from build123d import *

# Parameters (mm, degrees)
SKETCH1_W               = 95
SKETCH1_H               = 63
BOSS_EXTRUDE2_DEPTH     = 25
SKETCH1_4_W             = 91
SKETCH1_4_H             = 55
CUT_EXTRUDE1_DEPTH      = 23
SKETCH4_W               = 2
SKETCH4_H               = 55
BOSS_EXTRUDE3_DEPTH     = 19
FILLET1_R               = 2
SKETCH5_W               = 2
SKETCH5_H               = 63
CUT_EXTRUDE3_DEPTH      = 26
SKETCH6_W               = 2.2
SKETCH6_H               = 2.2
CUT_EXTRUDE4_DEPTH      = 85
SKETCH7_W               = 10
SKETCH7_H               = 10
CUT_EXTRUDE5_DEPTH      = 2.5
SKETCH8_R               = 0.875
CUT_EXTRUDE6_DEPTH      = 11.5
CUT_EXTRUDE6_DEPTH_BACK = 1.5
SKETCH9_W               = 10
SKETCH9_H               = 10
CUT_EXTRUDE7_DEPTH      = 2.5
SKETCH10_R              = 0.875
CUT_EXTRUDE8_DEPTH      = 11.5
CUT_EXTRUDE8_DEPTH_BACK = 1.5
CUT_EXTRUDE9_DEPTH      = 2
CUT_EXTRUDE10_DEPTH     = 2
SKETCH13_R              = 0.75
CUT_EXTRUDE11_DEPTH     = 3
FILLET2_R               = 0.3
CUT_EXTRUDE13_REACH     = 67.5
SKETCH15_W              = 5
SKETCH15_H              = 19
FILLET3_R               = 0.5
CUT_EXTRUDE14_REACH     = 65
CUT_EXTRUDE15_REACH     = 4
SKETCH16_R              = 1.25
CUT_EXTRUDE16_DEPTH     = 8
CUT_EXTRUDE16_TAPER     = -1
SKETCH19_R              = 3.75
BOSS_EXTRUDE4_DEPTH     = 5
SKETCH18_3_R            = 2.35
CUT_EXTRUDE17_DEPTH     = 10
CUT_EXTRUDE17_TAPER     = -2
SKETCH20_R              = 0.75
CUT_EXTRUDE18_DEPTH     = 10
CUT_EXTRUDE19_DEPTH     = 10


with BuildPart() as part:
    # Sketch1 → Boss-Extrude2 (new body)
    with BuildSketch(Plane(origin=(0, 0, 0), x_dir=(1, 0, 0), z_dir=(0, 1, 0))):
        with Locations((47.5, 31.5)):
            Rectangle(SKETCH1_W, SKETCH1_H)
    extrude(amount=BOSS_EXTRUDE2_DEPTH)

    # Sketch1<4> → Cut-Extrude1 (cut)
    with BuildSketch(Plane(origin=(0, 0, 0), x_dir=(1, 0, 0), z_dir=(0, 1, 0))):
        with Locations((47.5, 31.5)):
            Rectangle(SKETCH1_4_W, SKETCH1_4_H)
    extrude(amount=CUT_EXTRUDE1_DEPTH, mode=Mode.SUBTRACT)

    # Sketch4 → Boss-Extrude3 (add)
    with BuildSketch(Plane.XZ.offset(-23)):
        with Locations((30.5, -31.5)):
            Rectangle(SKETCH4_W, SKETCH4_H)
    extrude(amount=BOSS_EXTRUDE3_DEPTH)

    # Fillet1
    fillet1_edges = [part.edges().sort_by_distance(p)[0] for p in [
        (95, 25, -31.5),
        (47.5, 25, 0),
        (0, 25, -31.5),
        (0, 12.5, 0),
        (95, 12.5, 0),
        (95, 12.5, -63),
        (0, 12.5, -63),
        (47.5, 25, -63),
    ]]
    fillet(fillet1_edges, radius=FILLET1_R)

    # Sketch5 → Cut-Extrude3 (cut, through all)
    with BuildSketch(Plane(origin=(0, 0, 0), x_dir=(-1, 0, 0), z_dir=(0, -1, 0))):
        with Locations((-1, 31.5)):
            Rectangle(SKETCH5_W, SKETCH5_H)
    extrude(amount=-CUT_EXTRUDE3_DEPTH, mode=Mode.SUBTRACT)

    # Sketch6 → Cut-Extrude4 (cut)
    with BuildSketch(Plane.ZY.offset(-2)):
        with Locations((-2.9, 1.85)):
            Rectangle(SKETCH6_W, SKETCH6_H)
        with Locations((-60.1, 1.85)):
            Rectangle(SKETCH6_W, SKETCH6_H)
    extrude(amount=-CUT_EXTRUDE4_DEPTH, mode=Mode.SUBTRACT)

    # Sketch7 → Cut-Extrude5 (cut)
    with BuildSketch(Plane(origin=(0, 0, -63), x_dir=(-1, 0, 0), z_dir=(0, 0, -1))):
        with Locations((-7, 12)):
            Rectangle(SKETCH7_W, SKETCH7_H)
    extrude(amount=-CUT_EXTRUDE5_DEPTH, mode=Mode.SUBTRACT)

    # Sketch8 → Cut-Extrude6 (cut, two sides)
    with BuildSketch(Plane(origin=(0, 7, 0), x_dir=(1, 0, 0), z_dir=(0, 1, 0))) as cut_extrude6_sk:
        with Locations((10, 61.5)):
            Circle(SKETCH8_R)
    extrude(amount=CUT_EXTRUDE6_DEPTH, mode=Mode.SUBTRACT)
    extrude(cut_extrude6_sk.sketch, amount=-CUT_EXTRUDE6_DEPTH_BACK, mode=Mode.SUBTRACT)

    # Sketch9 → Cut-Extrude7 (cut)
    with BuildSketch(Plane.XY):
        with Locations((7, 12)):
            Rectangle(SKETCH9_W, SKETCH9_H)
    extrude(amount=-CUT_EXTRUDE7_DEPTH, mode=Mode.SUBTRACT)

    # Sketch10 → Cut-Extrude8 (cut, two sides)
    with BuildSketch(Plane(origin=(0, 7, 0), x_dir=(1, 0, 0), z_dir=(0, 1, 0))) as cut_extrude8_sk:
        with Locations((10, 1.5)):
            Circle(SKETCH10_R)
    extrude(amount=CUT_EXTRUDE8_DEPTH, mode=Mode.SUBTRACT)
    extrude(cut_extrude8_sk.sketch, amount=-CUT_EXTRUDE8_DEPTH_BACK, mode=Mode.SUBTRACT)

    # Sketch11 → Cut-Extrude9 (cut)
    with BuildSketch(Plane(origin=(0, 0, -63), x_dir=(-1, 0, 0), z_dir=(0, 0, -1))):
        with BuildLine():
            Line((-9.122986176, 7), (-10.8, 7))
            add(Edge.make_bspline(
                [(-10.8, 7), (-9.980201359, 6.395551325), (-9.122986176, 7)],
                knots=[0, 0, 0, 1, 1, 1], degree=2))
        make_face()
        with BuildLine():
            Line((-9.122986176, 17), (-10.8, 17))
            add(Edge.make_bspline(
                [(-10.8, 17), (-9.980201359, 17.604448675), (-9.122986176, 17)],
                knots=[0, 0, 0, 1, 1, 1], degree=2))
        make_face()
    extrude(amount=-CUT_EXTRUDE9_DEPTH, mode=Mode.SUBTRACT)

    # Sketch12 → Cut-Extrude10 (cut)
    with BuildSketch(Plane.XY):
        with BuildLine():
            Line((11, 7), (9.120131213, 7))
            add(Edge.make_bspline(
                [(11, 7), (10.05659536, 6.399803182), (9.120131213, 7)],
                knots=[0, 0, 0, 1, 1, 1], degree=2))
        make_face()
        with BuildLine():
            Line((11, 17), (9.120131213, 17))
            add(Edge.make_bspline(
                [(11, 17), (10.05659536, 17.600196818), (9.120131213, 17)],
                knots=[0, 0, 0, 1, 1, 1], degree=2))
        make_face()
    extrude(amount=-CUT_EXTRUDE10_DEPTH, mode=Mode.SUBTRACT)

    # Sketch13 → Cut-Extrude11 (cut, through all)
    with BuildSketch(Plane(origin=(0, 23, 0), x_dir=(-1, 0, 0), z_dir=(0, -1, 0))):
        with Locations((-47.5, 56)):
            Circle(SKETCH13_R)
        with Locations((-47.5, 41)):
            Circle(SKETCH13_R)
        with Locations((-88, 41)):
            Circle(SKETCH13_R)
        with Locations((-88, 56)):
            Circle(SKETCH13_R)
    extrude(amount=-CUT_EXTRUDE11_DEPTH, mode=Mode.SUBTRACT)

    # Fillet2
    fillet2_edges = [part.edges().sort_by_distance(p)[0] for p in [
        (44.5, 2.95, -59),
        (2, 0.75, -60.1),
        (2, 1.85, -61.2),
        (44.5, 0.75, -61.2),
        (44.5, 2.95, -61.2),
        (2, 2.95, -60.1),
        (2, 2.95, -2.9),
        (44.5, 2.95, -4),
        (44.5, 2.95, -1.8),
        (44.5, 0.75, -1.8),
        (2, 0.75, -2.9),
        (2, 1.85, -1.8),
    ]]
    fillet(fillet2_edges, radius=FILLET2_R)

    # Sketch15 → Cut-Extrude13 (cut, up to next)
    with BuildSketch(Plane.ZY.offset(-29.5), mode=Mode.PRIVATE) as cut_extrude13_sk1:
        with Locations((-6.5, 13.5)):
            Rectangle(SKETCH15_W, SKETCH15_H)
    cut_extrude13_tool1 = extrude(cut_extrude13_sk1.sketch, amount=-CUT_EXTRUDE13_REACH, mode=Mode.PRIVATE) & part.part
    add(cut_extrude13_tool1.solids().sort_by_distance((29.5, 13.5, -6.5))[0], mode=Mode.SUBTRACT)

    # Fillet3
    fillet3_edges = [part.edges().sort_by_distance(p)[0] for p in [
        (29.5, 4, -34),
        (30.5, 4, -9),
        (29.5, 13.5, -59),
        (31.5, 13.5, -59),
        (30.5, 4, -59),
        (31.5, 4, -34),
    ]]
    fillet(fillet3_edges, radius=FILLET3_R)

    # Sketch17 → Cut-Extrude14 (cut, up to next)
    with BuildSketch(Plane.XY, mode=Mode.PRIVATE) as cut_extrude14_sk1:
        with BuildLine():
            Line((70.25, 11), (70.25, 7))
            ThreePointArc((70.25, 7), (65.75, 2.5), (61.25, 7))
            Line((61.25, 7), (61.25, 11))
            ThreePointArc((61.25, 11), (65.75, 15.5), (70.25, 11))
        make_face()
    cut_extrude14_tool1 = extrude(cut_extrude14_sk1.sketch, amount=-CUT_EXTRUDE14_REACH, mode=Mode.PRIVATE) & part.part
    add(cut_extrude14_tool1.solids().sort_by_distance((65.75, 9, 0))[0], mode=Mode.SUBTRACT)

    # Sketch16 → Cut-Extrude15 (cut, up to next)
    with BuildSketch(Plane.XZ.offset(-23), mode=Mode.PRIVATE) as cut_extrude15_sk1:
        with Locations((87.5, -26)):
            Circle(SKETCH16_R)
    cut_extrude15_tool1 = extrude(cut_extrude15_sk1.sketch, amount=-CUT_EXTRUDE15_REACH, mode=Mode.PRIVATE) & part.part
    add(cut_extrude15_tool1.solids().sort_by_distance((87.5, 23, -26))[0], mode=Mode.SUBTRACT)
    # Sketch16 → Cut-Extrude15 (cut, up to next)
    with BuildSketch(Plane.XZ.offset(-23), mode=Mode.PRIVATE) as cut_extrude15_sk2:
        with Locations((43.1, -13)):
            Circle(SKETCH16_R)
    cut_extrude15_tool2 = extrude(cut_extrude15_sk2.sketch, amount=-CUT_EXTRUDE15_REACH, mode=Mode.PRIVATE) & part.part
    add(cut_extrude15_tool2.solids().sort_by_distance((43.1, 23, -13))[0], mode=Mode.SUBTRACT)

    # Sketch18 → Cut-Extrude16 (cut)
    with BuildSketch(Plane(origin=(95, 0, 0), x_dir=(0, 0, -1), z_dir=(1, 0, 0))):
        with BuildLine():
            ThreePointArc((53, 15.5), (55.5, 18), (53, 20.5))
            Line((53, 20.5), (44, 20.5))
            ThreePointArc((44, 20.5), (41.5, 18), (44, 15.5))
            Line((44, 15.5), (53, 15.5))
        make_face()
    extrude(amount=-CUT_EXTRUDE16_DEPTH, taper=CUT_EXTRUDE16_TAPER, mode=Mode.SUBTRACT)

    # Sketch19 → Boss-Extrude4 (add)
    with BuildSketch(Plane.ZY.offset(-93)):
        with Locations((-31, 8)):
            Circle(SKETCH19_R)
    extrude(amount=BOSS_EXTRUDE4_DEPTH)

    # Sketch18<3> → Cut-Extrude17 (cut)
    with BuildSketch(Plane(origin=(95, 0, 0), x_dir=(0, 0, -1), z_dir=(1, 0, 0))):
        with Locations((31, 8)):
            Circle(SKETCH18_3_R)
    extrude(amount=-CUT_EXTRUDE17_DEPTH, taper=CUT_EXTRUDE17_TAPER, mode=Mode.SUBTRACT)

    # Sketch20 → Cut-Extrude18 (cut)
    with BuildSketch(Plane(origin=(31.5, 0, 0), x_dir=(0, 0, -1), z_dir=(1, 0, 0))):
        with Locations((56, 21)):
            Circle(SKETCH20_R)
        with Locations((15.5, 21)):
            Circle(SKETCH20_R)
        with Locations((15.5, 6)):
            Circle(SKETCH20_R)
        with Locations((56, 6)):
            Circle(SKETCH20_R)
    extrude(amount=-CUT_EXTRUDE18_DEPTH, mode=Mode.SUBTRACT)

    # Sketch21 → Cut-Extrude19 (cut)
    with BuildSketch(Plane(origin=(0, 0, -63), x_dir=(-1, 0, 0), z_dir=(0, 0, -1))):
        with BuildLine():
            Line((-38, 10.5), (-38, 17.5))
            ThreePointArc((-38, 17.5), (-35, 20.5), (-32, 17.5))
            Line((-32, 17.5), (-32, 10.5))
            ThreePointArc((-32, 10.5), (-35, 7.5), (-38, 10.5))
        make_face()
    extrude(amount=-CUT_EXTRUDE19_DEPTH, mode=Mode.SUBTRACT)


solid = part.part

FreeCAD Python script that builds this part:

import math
import FreeCAD as App
import Part
import Sketcher
Q = App.Units.Quantity


def edges_at(feature, points):
    """Names of the edges that pass closest to the given points."""
    edges = feature.Shape.Edges
    near = lambda p: min(range(len(edges)), key=lambda i: edges[i].distToShape(Part.Vertex(*p))[0])
    return sorted({f"Edge{near(p) + 1}" for p in points})

doc = App.newDocument("Part")
body = doc.addObject("PartDesign::Body", "Body")

# Sketch on XZ plane
sketch1 = body.newObject("Sketcher::SketchObject", "Sketch")
sketch1.AttachmentSupport = (doc.getObject("XZ_Plane"), [""])
sketch1.MapMode = "FlatFace"
sketch1.addGeometry([
    Part.LineSegment(App.Vector(0, -63, 0), App.Vector(0, 0, 0)),
    Part.LineSegment(App.Vector(0, 0, 0), App.Vector(95, 0, 0)),
    Part.LineSegment(App.Vector(95, 0, 0), App.Vector(95, -63, 0)),
    Part.LineSegment(App.Vector(95, -63, 0), App.Vector(0, -63, 0)),
], False)
sketch1.addConstraint([
    Sketcher.Constraint("Coincident", 0, 2, 1, 1),
    Sketcher.Constraint("Coincident", 1, 2, 2, 1),
    Sketcher.Constraint("Coincident", 2, 2, 3, 1),
    Sketcher.Constraint("Coincident", 3, 2, 0, 1),
    Sketcher.Constraint("Vertical", 0),
    Sketcher.Constraint("Horizontal", 1),
    Sketcher.Constraint("Vertical", 2),
    Sketcher.Constraint("Horizontal", 3),
    Sketcher.Constraint("Coincident", 0, 2, -1, 1),
    Sketcher.Constraint("DistanceX", 1, 1, 1, 2, Q("95 mm")),
    Sketcher.Constraint("DistanceY", 0, 1, 0, 2, Q("63 mm")),
])
pad1 = body.newObject("PartDesign::Pad", "Pad")
pad1.Profile = sketch1
pad1.Length = 25
pad1.Reversed = True

# Sketch on XZ plane
sketch2 = body.newObject("Sketcher::SketchObject", "Sketch001")
sketch2.AttachmentSupport = (doc.getObject("XZ_Plane"), [""])
sketch2.MapMode = "FlatFace"
sketch2.addGeometry([
    Part.LineSegment(App.Vector(2, -59, 0), App.Vector(2, -4, 0)),
    Part.LineSegment(App.Vector(2, -4, 0), App.Vector(93, -4, 0)),
    Part.LineSegment(App.Vector(93, -4, 0), App.Vector(93, -59, 0)),
    Part.LineSegment(App.Vector(93, -59, 0), App.Vector(2, -59, 0)),
], False)
sketch2.addConstraint([
    Sketcher.Constraint("Coincident", 0, 2, 1, 1),
    Sketcher.Constraint("Coincident", 1, 2, 2, 1),
    Sketcher.Constraint("Coincident", 2, 2, 3, 1),
    Sketcher.Constraint("Coincident", 3, 2, 0, 1),
    Sketcher.Constraint("Vertical", 0),
    Sketcher.Constraint("Horizontal", 1),
    Sketcher.Constraint("Vertical", 2),
    Sketcher.Constraint("Horizontal", 3),
    Sketcher.Constraint("DistanceX", 1, 1, 1, 2, Q("91 mm")),
    Sketcher.Constraint("DistanceY", 0, 1, 0, 2, Q("55 mm")),
    Sketcher.Constraint("DistanceX", -1, 1, 0, 2, Q("2 mm")),
    Sketcher.Constraint("DistanceY", 0, 2, -1, 1, Q("4 mm")),
])
pocket1 = body.newObject("PartDesign::Pocket", "Pocket")
pocket1.Profile = sketch2
pocket1.Length = 23

# Sketch on XZ plane
sketch3 = body.newObject("Sketcher::SketchObject", "Sketch002")
sketch3.AttachmentSupport = (doc.getObject("XZ_Plane"), [""])
sketch3.MapMode = "FlatFace"
sketch3.AttachmentOffset = App.Placement(App.Vector(0, 0, -23), App.Rotation())
sketch3.addGeometry([
    Part.LineSegment(App.Vector(29.5, -4, 0), App.Vector(29.5, -59, 0)),
    Part.LineSegment(App.Vector(29.5, -59, 0), App.Vector(31.5, -59, 0)),
    Part.LineSegment(App.Vector(31.5, -59, 0), App.Vector(31.5, -4, 0)),
    Part.LineSegment(App.Vector(31.5, -4, 0), App.Vector(29.5, -4, 0)),
], False)
sketch3.addConstraint([
    Sketcher.Constraint("Coincident", 0, 2, 1, 1),
    Sketcher.Constraint("Coincident", 1, 2, 2, 1),
    Sketcher.Constraint("Coincident", 2, 2, 3, 1),
    Sketcher.Constraint("Coincident", 3, 2, 0, 1),
    Sketcher.Constraint("Vertical", 0),
    Sketcher.Constraint("Horizontal", 1),
    Sketcher.Constraint("Vertical", 2),
    Sketcher.Constraint("Horizontal", 3),
    Sketcher.Constraint("DistanceX", 1, 1, 1, 2, Q("2 mm")),
    Sketcher.Constraint("DistanceY", 0, 2, 0, 1, Q("55 mm")),
    Sketcher.Constraint("DistanceY", 0, 2, -1, 1, Q("59 mm")),
    Sketcher.Constraint("DistanceX", -1, 1, 0, 2, Q("29.5 mm")),
])
pad2 = body.newObject("PartDesign::Pad", "Pad001")
pad2.Profile = sketch3
pad2.Length = 19
doc.recompute()

fillet = body.newObject("PartDesign::Fillet", "Fillet")
fillet.Base = (pad2, edges_at(pad2, [
    (95, 25, -31.5),
    (47.5, 25, 0),
    (0, 25, -31.5),
    (0, 12.5, 0),
    (95, 12.5, 0),
    (95, 12.5, -63),
    (0, 12.5, -63),
    (47.5, 25, -63),
]))
fillet.Radius = 2

# Sketch on XZ plane
sketch4 = body.newObject("Sketcher::SketchObject", "Sketch003")
sketch4.AttachmentSupport = (doc.getObject("XZ_Plane"), [""])
sketch4.MapMode = "FlatFace"
sketch4.addGeometry([
    Part.LineSegment(App.Vector(2, -63, 0), App.Vector(2, 0, 0)),
    Part.LineSegment(App.Vector(2, 0, 0), App.Vector(0, 0, 0)),
    Part.LineSegment(App.Vector(0, 0, 0), App.Vector(0, -63, 0)),
    Part.LineSegment(App.Vector(0, -63, 0), App.Vector(2, -63, 0)),
], False)
sketch4.addConstraint([
    Sketcher.Constraint("Coincident", 0, 2, 1, 1),
    Sketcher.Constraint("Coincident", 1, 2, 2, 1),
    Sketcher.Constraint("Coincident", 2, 2, 3, 1),
    Sketcher.Constraint("Coincident", 3, 2, 0, 1),
    Sketcher.Constraint("Vertical", 0),
    Sketcher.Constraint("Horizontal", 1),
    Sketcher.Constraint("Vertical", 2),
    Sketcher.Constraint("Horizontal", 3),
    Sketcher.Constraint("Coincident", 1, 2, -1, 1),
    Sketcher.Constraint("DistanceX", 1, 2, 1, 1, Q("2 mm")),
    Sketcher.Constraint("DistanceY", 0, 1, 0, 2, Q("63 mm")),
])
pocket2 = body.newObject("PartDesign::Pocket", "Pocket001")
pocket2.Profile = sketch4
pocket2.Type = "ThroughAll"

# Sketch on YZ plane
sketch5 = body.newObject("Sketcher::SketchObject", "Sketch004")
sketch5.AttachmentSupport = (doc.getObject("YZ_Plane"), [""])
sketch5.MapMode = "FlatFace"
sketch5.AttachmentOffset = App.Placement(App.Vector(0, 0, 2), App.Rotation())
sketch5.addGeometry([
    Part.LineSegment(App.Vector(3, -4, 0), App.Vector(0.8, -4, 0)),  # 0
    Part.LineSegment(App.Vector(0.8, -4, 0), App.Vector(0.8, -1.8, 0)),  # 1
    Part.LineSegment(App.Vector(0.8, -1.8, 0), App.Vector(3, -1.8, 0)),  # 2
    Part.LineSegment(App.Vector(3, -1.8, 0), App.Vector(3, -4, 0)),  # 3
    Part.LineSegment(App.Vector(3, -61.2, 0), App.Vector(0.8, -61.2, 0)),  # 4
    Part.LineSegment(App.Vector(0.8, -61.2, 0), App.Vector(0.8, -59, 0)),  # 5
    Part.LineSegment(App.Vector(0.8, -59, 0), App.Vector(3, -59, 0)),  # 6
    Part.LineSegment(App.Vector(3, -59, 0), App.Vector(3, -61.2, 0)),  # 7
], False)
sketch5.addConstraint([
    Sketcher.Constraint("Coincident", 0, 2, 1, 1),
    Sketcher.Constraint("Coincident", 1, 2, 2, 1),
    Sketcher.Constraint("Coincident", 2, 2, 3, 1),
    Sketcher.Constraint("Coincident", 3, 2, 0, 1),
    Sketcher.Constraint("Coincident", 4, 2, 5, 1),
    Sketcher.Constraint("Coincident", 5, 2, 6, 1),
    Sketcher.Constraint("Coincident", 6, 2, 7, 1),
    Sketcher.Constraint("Coincident", 7, 2, 4, 1),
    Sketcher.Constraint("Horizontal", 0),
    Sketcher.Constraint("Vertical", 1),
    Sketcher.Constraint("Horizontal", 2),
    Sketcher.Constraint("Vertical", 3),
    Sketcher.Constraint("Horizontal", 4),
    Sketcher.Constraint("Vertical", 5),
    Sketcher.Constraint("Horizontal", 6),
    Sketcher.Constraint("Vertical", 7),
    Sketcher.Constraint("Vertical", 1, 2, 4, 2),
    Sketcher.Constraint("Vertical", 3, 2, 6, 2),
    Sketcher.Constraint("Equal", 6, 1),
    Sketcher.Constraint("Equal", 3, 5),
    Sketcher.Constraint("DistanceX", 0, 2, 0, 1, Q("2.2 mm")),
    Sketcher.Constraint("DistanceY", 0, 2, -1, 1, Q("4 mm")),
    Sketcher.Constraint("DistanceY", 5, 2, -1, 1, Q("59 mm")),
    Sketcher.Constraint("DistanceX", -1, 1, 0, 2, Q("0.75 mm")),
])
pocket3 = body.newObject("PartDesign::Pocket", "Pocket002")
pocket3.Profile = sketch5
pocket3.Length = 85
pocket3.Reversed = True

# Sketch on XY plane
sketch6 = body.newObject("Sketcher::SketchObject", "Sketch005")
sketch6.AttachmentSupport = (doc.getObject("XY_Plane"), [""])
sketch6.MapMode = "FlatFace"
sketch6.AttachmentOffset = App.Placement(App.Vector(0, 0, -63), App.Rotation())
sketch6.addGeometry([
    Part.LineSegment(App.Vector(12, 17, 0), App.Vector(12, 7, 0)),
    Part.LineSegment(App.Vector(12, 7, 0), App.Vector(2, 7, 0)),
    Part.LineSegment(App.Vector(2, 7, 0), App.Vector(2, 17, 0)),
    Part.LineSegment(App.Vector(2, 17, 0), App.Vector(12, 17, 0)),
], False)
sketch6.addConstraint([
    Sketcher.Constraint("Coincident", 0, 2, 1, 1),
    Sketcher.Constraint("Coincident", 1, 2, 2, 1),
    Sketcher.Constraint("Coincident", 2, 2, 3, 1),
    Sketcher.Constraint("Coincident", 3, 2, 0, 1),
    Sketcher.Constraint("Vertical", 0),
    Sketcher.Constraint("Horizontal", 1),
    Sketcher.Constraint("Vertical", 2),
    Sketcher.Constraint("Horizontal", 3),
    Sketcher.Constraint("Equal", 3, 0),
    Sketcher.Constraint("DistanceX", 1, 2, 1, 1, Q("10 mm")),
    Sketcher.Constraint("DistanceX", -1, 1, 0, 2, Q("12 mm")),
    Sketcher.Constraint("DistanceY", -1, 1, 0, 2, Q("7 mm")),
])
pocket4 = body.newObject("PartDesign::Pocket", "Pocket003")
pocket4.Profile = sketch6
pocket4.Length = 2.5
pocket4.Reversed = True

# Sketch on XZ plane
sketch7 = body.newObject("Sketcher::SketchObject", "Sketch006")
sketch7.AttachmentSupport = (doc.getObject("XZ_Plane"), [""])
sketch7.MapMode = "FlatFace"
sketch7.AttachmentOffset = App.Placement(App.Vector(0, 0, -7), App.Rotation())
sketch7.addGeometry(Part.Circle(App.Vector(10, -61.5, 0), App.Vector(0, 0, 1), 0.9), False)
sketch7.addConstraint([
    Sketcher.Constraint("Diameter", 0, Q("1.75 mm")),
    Sketcher.Constraint("DistanceX", -1, 1, 0, 3, Q("10 mm")),
    Sketcher.Constraint("DistanceY", 0, 3, -1, 1, Q("61.5 mm")),
])
pocket5 = body.newObject("PartDesign::Pocket", "Pocket004")
pocket5.Profile = sketch7
pocket5.Type = "TwoLengths"
pocket5.Length = 11.5
pocket5.Length2 = 1.5

# Sketch on XY plane
sketch8 = body.newObject("Sketcher::SketchObject", "Sketch007")
sketch8.AttachmentSupport = (doc.getObject("XY_Plane"), [""])
sketch8.MapMode = "FlatFace"
sketch8.addGeometry([
    Part.LineSegment(App.Vector(2, 17, 0), App.Vector(2, 7, 0)),
    Part.LineSegment(App.Vector(2, 7, 0), App.Vector(12, 7, 0)),
    Part.LineSegment(App.Vector(12, 7, 0), App.Vector(12, 17, 0)),
    Part.LineSegment(App.Vector(12, 17, 0), App.Vector(2, 17, 0)),
], False)
sketch8.addConstraint([
    Sketcher.Constraint("Coincident", 0, 2, 1, 1),
    Sketcher.Constraint("Coincident", 1, 2, 2, 1),
    Sketcher.Constraint("Coincident", 2, 2, 3, 1),
    Sketcher.Constraint("Coincident", 3, 2, 0, 1),
    Sketcher.Constraint("Vertical", 0),
    Sketcher.Constraint("Horizontal", 1),
    Sketcher.Constraint("Vertical", 2),
    Sketcher.Constraint("Horizontal", 3),
    Sketcher.Constraint("Equal", 3, 0),
    Sketcher.Constraint("DistanceX", 1, 1, 1, 2, Q("10 mm")),
    Sketcher.Constraint("DistanceX", -1, 1, 0, 2, Q("2 mm")),
    Sketcher.Constraint("DistanceY", -1, 1, 0, 2, Q("7 mm")),
])
pocket6 = body.newObject("PartDesign::Pocket", "Pocket005")
pocket6.Profile = sketch8
pocket6.Length = 2.5

# Sketch on XZ plane
sketch9 = body.newObject("Sketcher::SketchObject", "Sketch008")
sketch9.AttachmentSupport = (doc.getObject("XZ_Plane"), [""])
sketch9.MapMode = "FlatFace"
sketch9.AttachmentOffset = App.Placement(App.Vector(0, 0, -7), App.Rotation())
sketch9.addGeometry(Part.Circle(App.Vector(10, -1.5, 0), App.Vector(0, 0, 1), 0.9), False)
sketch9.addConstraint([
    Sketcher.Constraint("Diameter", 0, Q("1.75 mm")),
    Sketcher.Constraint("DistanceX", -1, 1, 0, 3, Q("10 mm")),
    Sketcher.Constraint("DistanceY", 0, 3, -1, 1, Q("1.5 mm")),
])
pocket7 = body.newObject("PartDesign::Pocket", "Pocket006")
pocket7.Profile = sketch9
pocket7.Type = "TwoLengths"
pocket7.Length = 11.5
pocket7.Length2 = 1.5

# Sketch on XY plane
sketch10 = body.newObject("Sketcher::SketchObject", "Sketch009")
sketch10.AttachmentSupport = (doc.getObject("XY_Plane"), [""])
sketch10.MapMode = "FlatFace"
sketch10.AttachmentOffset = App.Placement(App.Vector(0, 0, -63), App.Rotation())
sketch10.addGeometry([
    Part.LineSegment(App.Vector(9.122986, 7, 0), App.Vector(10.8, 7, 0)),
    Part.BSplineCurve([App.Vector(10.8, 7, 0), App.Vector(9.980201, 6.395551, 0), App.Vector(9.122986, 7, 0)], [3, 3], [0, 1], False, 2, [1, 1, 1], False),
    Part.LineSegment(App.Vector(10.8, 17, 0), App.Vector(9.122986, 17, 0)),
    Part.BSplineCurve([App.Vector(10.8, 17, 0), App.Vector(9.980201, 17.604449, 0), App.Vector(9.122986, 17, 0)], [3, 3], [0, 1], False, 2, [1, 1, 1], False),
], False)
sketch10.addConstraint([
    Sketcher.Constraint("Block", 1),
    Sketcher.Constraint("Block", 3),
    Sketcher.Constraint("Coincident", 0, 1, 1, 2),
    Sketcher.Constraint("Coincident", 1, 1, 0, 2),
    Sketcher.Constraint("Coincident", 2, 1, 3, 1),
    Sketcher.Constraint("Coincident", 3, 2, 2, 2),
])
pocket8 = body.newObject("PartDesign::Pocket", "Pocket007")
pocket8.Profile = sketch10
pocket8.Length = 2
pocket8.Reversed = True

# Sketch on XY plane
sketch11 = body.newObject("Sketcher::SketchObject", "Sketch010")
sketch11.AttachmentSupport = (doc.getObject("XY_Plane"), [""])
sketch11.MapMode = "FlatFace"
sketch11.addGeometry([
    Part.LineSegment(App.Vector(11, 7, 0), App.Vector(9.120131, 7, 0)),
    Part.BSplineCurve([App.Vector(11, 7, 0), App.Vector(10.056595, 6.399803, 0), App.Vector(9.120131, 7, 0)], [3, 3], [0, 1], False, 2, [1, 1, 1], False),
    Part.LineSegment(App.Vector(9.120131, 17, 0), App.Vector(11, 17, 0)),
    Part.BSplineCurve([App.Vector(11, 17, 0), App.Vector(10.056595, 17.600197, 0), App.Vector(9.120131, 17, 0)], [3, 3], [0, 1], False, 2, [1, 1, 1], False),
], False)
sketch11.addConstraint([
    Sketcher.Constraint("Block", 1),
    Sketcher.Constraint("Block", 3),
    Sketcher.Constraint("Coincident", 0, 1, 1, 1),
    Sketcher.Constraint("Coincident", 1, 2, 0, 2),
    Sketcher.Constraint("Coincident", 2, 1, 3, 2),
    Sketcher.Constraint("Coincident", 3, 1, 2, 2),
])
pocket9 = body.newObject("PartDesign::Pocket", "Pocket008")
pocket9.Profile = sketch11
pocket9.Length = 2

# Sketch on XZ plane
sketch12 = body.newObject("Sketcher::SketchObject", "Sketch011")
sketch12.AttachmentSupport = (doc.getObject("XZ_Plane"), [""])
sketch12.MapMode = "FlatFace"
sketch12.AttachmentOffset = App.Placement(App.Vector(0, 0, -23), App.Rotation())
sketch12.addGeometry([
    Part.Circle(App.Vector(47.5, -56, 0), App.Vector(0, 0, 1), 0.8),
    Part.Circle(App.Vector(47.5, -41, 0), App.Vector(0, 0, 1), 0.8),
    Part.Circle(App.Vector(88, -41, 0), App.Vector(0, 0, 1), 0.8),
    Part.Circle(App.Vector(88, -56, 0), App.Vector(0, 0, 1), 0.8),
], False)
sketch12.addConstraint([
    Sketcher.Constraint("Equal", 0, 1),
    Sketcher.Constraint("Equal", 1, 2),
    Sketcher.Constraint("Equal", 2, 3),
    Sketcher.Constraint("Horizontal", 1, 3, 2, 3),
    Sketcher.Constraint("Horizontal", 0, 3, 3, 3),
    Sketcher.Constraint("Vertical", 0, 3, 1, 3),
    Sketcher.Constraint("Vertical", 2, 3, 3, 3),
    Sketcher.Constraint("Diameter", 0, Q("1.5 mm")),
    Sketcher.Constraint("DistanceY", 0, 3, -1, 1, Q("56 mm")),
    Sketcher.Constraint("DistanceY", 1, 3, -1, 1, Q("41 mm")),
    Sketcher.Constraint("DistanceX", -1, 1, 2, 3, Q("88 mm")),
    Sketcher.Constraint("DistanceX", -1, 1, 0, 3, Q("47.5 mm")),
])
pocket10 = body.newObject("PartDesign::Pocket", "Pocket009")
pocket10.Profile = sketch12
pocket10.Type = "ThroughAll"
doc.recompute()

fillet2 = body.newObject("PartDesign::Fillet", "Fillet001")
fillet2.Base = (pocket10, edges_at(pocket10, [
    (44.5, 2.95, -59),
    (2, 0.75, -60.1),
    (2, 1.85, -61.2),
    (44.5, 0.75, -61.2),
    (44.5, 2.95, -61.2),
    (2, 2.95, -60.1),
    (2, 2.95, -2.9),
    (44.5, 2.95, -4),
    (44.5, 2.95, -1.8),
    (44.5, 0.75, -1.8),
    (2, 0.75, -2.9),
    (2, 1.85, -1.8),
]))
fillet2.Radius = 0.3

# Sketch on YZ plane
sketch13 = body.newObject("Sketcher::SketchObject", "Sketch012")
sketch13.AttachmentSupport = (doc.getObject("YZ_Plane"), [""])
sketch13.MapMode = "FlatFace"
sketch13.AttachmentOffset = App.Placement(App.Vector(0, 0, 29.5), App.Rotation())
sketch13.addGeometry([
    Part.LineSegment(App.Vector(23, -9, 0), App.Vector(4, -9, 0)),
    Part.LineSegment(App.Vector(4, -9, 0), App.Vector(4, -4, 0)),
    Part.LineSegment(App.Vector(4, -4, 0), App.Vector(23, -4, 0)),
    Part.LineSegment(App.Vector(23, -4, 0), App.Vector(23, -9, 0)),
], False)
sketch13.addConstraint([
    Sketcher.Constraint("Coincident", 0, 2, 1, 1),
    Sketcher.Constraint("Coincident", 1, 2, 2, 1),
    Sketcher.Constraint("Coincident", 2, 2, 3, 1),
    Sketcher.Constraint("Coincident", 3, 2, 0, 1),
    Sketcher.Constraint("Horizontal", 0),
    Sketcher.Constraint("Vertical", 1),
    Sketcher.Constraint("Horizontal", 2),
    Sketcher.Constraint("Vertical", 3),
    Sketcher.Constraint("DistanceX", 0, 2, 0, 1, Q("19 mm")),
    Sketcher.Constraint("DistanceY", 1, 1, 1, 2, Q("5 mm")),
    Sketcher.Constraint("DistanceX", -1, 1, 0, 2, Q("4 mm")),
    Sketcher.Constraint("DistanceY", 0, 2, -1, 1, Q("9 mm")),
])
pocket11 = body.newObject("PartDesign::Pocket", "Pocket010")
pocket11.Profile = sketch13
pocket11.Type = "UpToFirst"
pocket11.Reversed = True
doc.recompute()

fillet3 = body.newObject("PartDesign::Fillet", "Fillet002")
fillet3.Base = (pocket11, edges_at(pocket11, [
    (29.5, 4, -34),
    (30.5, 4, -9),
    (29.5, 13.5, -59),
    (31.5, 13.5, -59),
    (30.5, 4, -59),
    (31.5, 4, -34),
]))
fillet3.Radius = 0.5

# Sketch on XY plane
sketch14 = body.newObject("Sketcher::SketchObject", "Sketch013")
sketch14.AttachmentSupport = (doc.getObject("XY_Plane"), [""])
sketch14.MapMode = "FlatFace"
sketch14.addGeometry([
    Part.LineSegment(App.Vector(70.2, 7, 0), App.Vector(70.2, 11, 0)),
    Part.ArcOfCircle(Part.Circle(App.Vector(65.8, 11, 0), App.Vector(0, 0, 1), 4.5), math.radians(0), math.radians(180)),
    Part.LineSegment(App.Vector(61.2, 11, 0), App.Vector(61.2, 7, 0)),
    Part.ArcOfCircle(Part.Circle(App.Vector(65.8, 7, 0), App.Vector(0, 0, 1), 4.5), math.radians(180), math.radians(360)),
], False)
sketch14.addConstraint([
    Sketcher.Constraint("Tangent", 0, 2, 1, 1),
    Sketcher.Constraint("Tangent", 1, 2, 2, 1),
    Sketcher.Constraint("Tangent", 2, 2, 3, 1),
    Sketcher.Constraint("Tangent", 3, 2, 0, 1),
    Sketcher.Constraint("Vertical", 0),
    Sketcher.Constraint("Vertical", 2),
    Sketcher.Constraint("Radius", 1, Q("4.5 mm")),
    Sketcher.Constraint("DistanceY", 0, 1, 0, 2, Q("4 mm")),
    Sketcher.Constraint("DistanceY", -1, 1, 1, 3, Q("11 mm")),
    Sketcher.Constraint("DistanceX", -1, 1, 1, 3, Q("65.75 mm")),
])
pocket12 = body.newObject("PartDesign::Pocket", "Pocket011")
pocket12.Profile = sketch14
pocket12.Type = "UpToFirst"

# Sketch on XZ plane
sketch15 = body.newObject("Sketcher::SketchObject", "Sketch014")
sketch15.AttachmentSupport = (doc.getObject("XZ_Plane"), [""])
sketch15.MapMode = "FlatFace"
sketch15.AttachmentOffset = App.Placement(App.Vector(0, 0, -23), App.Rotation())
sketch15.addGeometry(Part.Circle(App.Vector(87.5, -26, 0), App.Vector(0, 0, 1), 1.2), False)
sketch15.addConstraint([
    Sketcher.Constraint("Diameter", 0, Q("2.5 mm")),
    Sketcher.Constraint("DistanceY", 0, 3, -1, 1, Q("26 mm")),
    Sketcher.Constraint("DistanceX", -1, 1, 0, 3, Q("87.5 mm")),
])
pocket13 = body.newObject("PartDesign::Pocket", "Pocket012")
pocket13.Profile = sketch15
pocket13.Type = "UpToFirst"

# Sketch on XZ plane
sketch16 = body.newObject("Sketcher::SketchObject", "Sketch015")
sketch16.AttachmentSupport = (doc.getObject("XZ_Plane"), [""])
sketch16.MapMode = "FlatFace"
sketch16.AttachmentOffset = App.Placement(App.Vector(0, 0, -23), App.Rotation())
sketch16.addGeometry(Part.Circle(App.Vector(43.1, -13, 0), App.Vector(0, 0, 1), 1.2), False)
sketch16.addConstraint([
    Sketcher.Constraint("Diameter", 0, Q("2.5 mm")),
    Sketcher.Constraint("DistanceY", 0, 3, -1, 1, Q("13 mm")),
    Sketcher.Constraint("DistanceX", -1, 1, 0, 3, Q("43.1 mm")),
])
pocket14 = body.newObject("PartDesign::Pocket", "Pocket013")
pocket14.Profile = sketch16
pocket14.Type = "UpToFirst"

# Sketch on YZ plane
sketch17 = body.newObject("Sketcher::SketchObject", "Sketch016")
sketch17.AttachmentSupport = (doc.getObject("YZ_Plane"), [""])
sketch17.MapMode = "FlatFace"
sketch17.AttachmentOffset = App.Placement(App.Vector(0, 0, 95), App.Rotation())
sketch17.addGeometry([
    Part.ArcOfCircle(Part.Circle(App.Vector(18, -53, 0), App.Vector(0, 0, 1), 2.5), math.radians(180), math.radians(360)),
    Part.LineSegment(App.Vector(20.5, -53, 0), App.Vector(20.5, -44, 0)),
    Part.ArcOfCircle(Part.Circle(App.Vector(18, -44, 0), App.Vector(0, 0, 1), 2.5), math.radians(0), math.radians(180)),
    Part.LineSegment(App.Vector(15.5, -44, 0), App.Vector(15.5, -53, 0)),
], False)
sketch17.addConstraint([
    Sketcher.Constraint("Tangent", 0, 2, 1, 1),
    Sketcher.Constraint("Tangent", 1, 2, 2, 1),
    Sketcher.Constraint("Tangent", 2, 2, 3, 1),
    Sketcher.Constraint("Tangent", 3, 2, 0, 1),
    Sketcher.Constraint("Vertical", 1),
    Sketcher.Constraint("Vertical", 3),
    Sketcher.Constraint("Radius", 0, Q("2.5 mm")),
    Sketcher.Constraint("DistanceY", 1, 1, 1, 2, Q("9 mm")),
    Sketcher.Constraint("DistanceX", -1, 1, 0, 3, Q("18 mm")),
    Sketcher.Constraint("DistanceY", 0, 3, -1, 1, Q("53 mm")),
])
pocket15 = body.newObject("PartDesign::Pocket", "Pocket014")
pocket15.Profile = sketch17
pocket15.Length = 8
pocket15.TaperAngle = 1

# Sketch on YZ plane
sketch18 = body.newObject("Sketcher::SketchObject", "Sketch017")
sketch18.AttachmentSupport = (doc.getObject("YZ_Plane"), [""])
sketch18.MapMode = "FlatFace"
sketch18.AttachmentOffset = App.Placement(App.Vector(0, 0, 93), App.Rotation())
sketch18.addGeometry(Part.Circle(App.Vector(8, -31, 0), App.Vector(0, 0, 1), 3.8), False)
sketch18.addConstraint([
    Sketcher.Constraint("Diameter", 0, Q("7.5 mm")),
    Sketcher.Constraint("DistanceX", -1, 1, 0, 3, Q("8 mm")),
    Sketcher.Constraint("DistanceY", 0, 3, -1, 1, Q("31 mm")),
])
pad3 = body.newObject("PartDesign::Pad", "Pad002")
pad3.Profile = sketch18
pad3.Length = 5
pad3.Reversed = True

# Sketch on YZ plane
sketch19 = body.newObject("Sketcher::SketchObject", "Sketch018")
sketch19.AttachmentSupport = (doc.getObject("YZ_Plane"), [""])
sketch19.MapMode = "FlatFace"
sketch19.AttachmentOffset = App.Placement(App.Vector(0, 0, 95), App.Rotation())
sketch19.addGeometry(Part.Circle(App.Vector(8, -31, 0), App.Vector(0, 0, 1), 2.4), False)
sketch19.addConstraint([
    Sketcher.Constraint("Diameter", 0, Q("4.7 mm")),
    Sketcher.Constraint("DistanceX", -1, 1, 0, 3, Q("8 mm")),
    Sketcher.Constraint("DistanceY", 0, 3, -1, 1, Q("31 mm")),
])
pocket16 = body.newObject("PartDesign::Pocket", "Pocket015")
pocket16.Profile = sketch19
pocket16.Length = 10
pocket16.TaperAngle = 2

# Sketch on YZ plane
sketch20 = body.newObject("Sketcher::SketchObject", "Sketch019")
sketch20.AttachmentSupport = (doc.getObject("YZ_Plane"), [""])
sketch20.MapMode = "FlatFace"
sketch20.AttachmentOffset = App.Placement(App.Vector(0, 0, 31.5), App.Rotation())
sketch20.addGeometry([
    Part.Circle(App.Vector(21, -56, 0), App.Vector(0, 0, 1), 0.8),
    Part.Circle(App.Vector(21, -15.5, 0), App.Vector(0, 0, 1), 0.8),
    Part.Circle(App.Vector(6, -15.5, 0), App.Vector(0, 0, 1), 0.8),
    Part.Circle(App.Vector(6, -56, 0), App.Vector(0, 0, 1), 0.8),
], False)
sketch20.addConstraint([
    Sketcher.Constraint("Equal", 0, 1),
    Sketcher.Constraint("Equal", 1, 2),
    Sketcher.Constraint("Equal", 2, 3),
    Sketcher.Constraint("Horizontal", 1, 3, 2, 3),
    Sketcher.Constraint("Horizontal", 0, 3, 3, 3),
    Sketcher.Constraint("Vertical", 0, 3, 1, 3),
    Sketcher.Constraint("Vertical", 2, 3, 3, 3),
    Sketcher.Constraint("Diameter", 0, Q("1.5 mm")),
    Sketcher.Constraint("DistanceX", -1, 1, 0, 3, Q("21 mm")),
    Sketcher.Constraint("DistanceY", 0, 3, -1, 1, Q("56 mm")),
    Sketcher.Constraint("DistanceX", -1, 1, 2, 3, Q("6 mm")),
    Sketcher.Constraint("DistanceY", 1, 3, -1, 1, Q("15.5 mm")),
])
pocket17 = body.newObject("PartDesign::Pocket", "Pocket016")
pocket17.Profile = sketch20
pocket17.Length = 10

# Sketch on XY plane
sketch21 = body.newObject("Sketcher::SketchObject", "Sketch020")
sketch21.AttachmentSupport = (doc.getObject("XY_Plane"), [""])
sketch21.MapMode = "FlatFace"
sketch21.AttachmentOffset = App.Placement(App.Vector(0, 0, -63), App.Rotation())
sketch21.addGeometry([
    Part.LineSegment(App.Vector(38, 17.5, 0), App.Vector(38, 10.5, 0)),
    Part.ArcOfCircle(Part.Circle(App.Vector(35, 10.5, 0), App.Vector(0, 0, 1), 3), math.radians(180), math.radians(360)),
    Part.LineSegment(App.Vector(32, 10.5, 0), App.Vector(32, 17.5, 0)),
    Part.ArcOfCircle(Part.Circle(App.Vector(35, 17.5, 0), App.Vector(0, 0, 1), 3), math.radians(0), math.radians(180)),
], False)
sketch21.addConstraint([
    Sketcher.Constraint("Tangent", 0, 2, 1, 2),
    Sketcher.Constraint("Tangent", 1, 1, 2, 1),
    Sketcher.Constraint("Tangent", 2, 2, 3, 2),
    Sketcher.Constraint("Tangent", 3, 1, 0, 1),
    Sketcher.Constraint("Vertical", 0),
    Sketcher.Constraint("Vertical", 2),
    Sketcher.Constraint("Radius", 1, Q("3 mm")),
    Sketcher.Constraint("DistanceY", 0, 2, 0, 1, Q("7 mm")),
    Sketcher.Constraint("DistanceX", -1, 1, 1, 3, Q("35 mm")),
    Sketcher.Constraint("DistanceY", -1, 1, 1, 3, Q("10.5 mm")),
])
pocket18 = body.newObject("PartDesign::Pocket", "Pocket017")
pocket18.Profile = sketch21
pocket18.Length = 10
pocket18.Reversed = True

doc.recompute()
